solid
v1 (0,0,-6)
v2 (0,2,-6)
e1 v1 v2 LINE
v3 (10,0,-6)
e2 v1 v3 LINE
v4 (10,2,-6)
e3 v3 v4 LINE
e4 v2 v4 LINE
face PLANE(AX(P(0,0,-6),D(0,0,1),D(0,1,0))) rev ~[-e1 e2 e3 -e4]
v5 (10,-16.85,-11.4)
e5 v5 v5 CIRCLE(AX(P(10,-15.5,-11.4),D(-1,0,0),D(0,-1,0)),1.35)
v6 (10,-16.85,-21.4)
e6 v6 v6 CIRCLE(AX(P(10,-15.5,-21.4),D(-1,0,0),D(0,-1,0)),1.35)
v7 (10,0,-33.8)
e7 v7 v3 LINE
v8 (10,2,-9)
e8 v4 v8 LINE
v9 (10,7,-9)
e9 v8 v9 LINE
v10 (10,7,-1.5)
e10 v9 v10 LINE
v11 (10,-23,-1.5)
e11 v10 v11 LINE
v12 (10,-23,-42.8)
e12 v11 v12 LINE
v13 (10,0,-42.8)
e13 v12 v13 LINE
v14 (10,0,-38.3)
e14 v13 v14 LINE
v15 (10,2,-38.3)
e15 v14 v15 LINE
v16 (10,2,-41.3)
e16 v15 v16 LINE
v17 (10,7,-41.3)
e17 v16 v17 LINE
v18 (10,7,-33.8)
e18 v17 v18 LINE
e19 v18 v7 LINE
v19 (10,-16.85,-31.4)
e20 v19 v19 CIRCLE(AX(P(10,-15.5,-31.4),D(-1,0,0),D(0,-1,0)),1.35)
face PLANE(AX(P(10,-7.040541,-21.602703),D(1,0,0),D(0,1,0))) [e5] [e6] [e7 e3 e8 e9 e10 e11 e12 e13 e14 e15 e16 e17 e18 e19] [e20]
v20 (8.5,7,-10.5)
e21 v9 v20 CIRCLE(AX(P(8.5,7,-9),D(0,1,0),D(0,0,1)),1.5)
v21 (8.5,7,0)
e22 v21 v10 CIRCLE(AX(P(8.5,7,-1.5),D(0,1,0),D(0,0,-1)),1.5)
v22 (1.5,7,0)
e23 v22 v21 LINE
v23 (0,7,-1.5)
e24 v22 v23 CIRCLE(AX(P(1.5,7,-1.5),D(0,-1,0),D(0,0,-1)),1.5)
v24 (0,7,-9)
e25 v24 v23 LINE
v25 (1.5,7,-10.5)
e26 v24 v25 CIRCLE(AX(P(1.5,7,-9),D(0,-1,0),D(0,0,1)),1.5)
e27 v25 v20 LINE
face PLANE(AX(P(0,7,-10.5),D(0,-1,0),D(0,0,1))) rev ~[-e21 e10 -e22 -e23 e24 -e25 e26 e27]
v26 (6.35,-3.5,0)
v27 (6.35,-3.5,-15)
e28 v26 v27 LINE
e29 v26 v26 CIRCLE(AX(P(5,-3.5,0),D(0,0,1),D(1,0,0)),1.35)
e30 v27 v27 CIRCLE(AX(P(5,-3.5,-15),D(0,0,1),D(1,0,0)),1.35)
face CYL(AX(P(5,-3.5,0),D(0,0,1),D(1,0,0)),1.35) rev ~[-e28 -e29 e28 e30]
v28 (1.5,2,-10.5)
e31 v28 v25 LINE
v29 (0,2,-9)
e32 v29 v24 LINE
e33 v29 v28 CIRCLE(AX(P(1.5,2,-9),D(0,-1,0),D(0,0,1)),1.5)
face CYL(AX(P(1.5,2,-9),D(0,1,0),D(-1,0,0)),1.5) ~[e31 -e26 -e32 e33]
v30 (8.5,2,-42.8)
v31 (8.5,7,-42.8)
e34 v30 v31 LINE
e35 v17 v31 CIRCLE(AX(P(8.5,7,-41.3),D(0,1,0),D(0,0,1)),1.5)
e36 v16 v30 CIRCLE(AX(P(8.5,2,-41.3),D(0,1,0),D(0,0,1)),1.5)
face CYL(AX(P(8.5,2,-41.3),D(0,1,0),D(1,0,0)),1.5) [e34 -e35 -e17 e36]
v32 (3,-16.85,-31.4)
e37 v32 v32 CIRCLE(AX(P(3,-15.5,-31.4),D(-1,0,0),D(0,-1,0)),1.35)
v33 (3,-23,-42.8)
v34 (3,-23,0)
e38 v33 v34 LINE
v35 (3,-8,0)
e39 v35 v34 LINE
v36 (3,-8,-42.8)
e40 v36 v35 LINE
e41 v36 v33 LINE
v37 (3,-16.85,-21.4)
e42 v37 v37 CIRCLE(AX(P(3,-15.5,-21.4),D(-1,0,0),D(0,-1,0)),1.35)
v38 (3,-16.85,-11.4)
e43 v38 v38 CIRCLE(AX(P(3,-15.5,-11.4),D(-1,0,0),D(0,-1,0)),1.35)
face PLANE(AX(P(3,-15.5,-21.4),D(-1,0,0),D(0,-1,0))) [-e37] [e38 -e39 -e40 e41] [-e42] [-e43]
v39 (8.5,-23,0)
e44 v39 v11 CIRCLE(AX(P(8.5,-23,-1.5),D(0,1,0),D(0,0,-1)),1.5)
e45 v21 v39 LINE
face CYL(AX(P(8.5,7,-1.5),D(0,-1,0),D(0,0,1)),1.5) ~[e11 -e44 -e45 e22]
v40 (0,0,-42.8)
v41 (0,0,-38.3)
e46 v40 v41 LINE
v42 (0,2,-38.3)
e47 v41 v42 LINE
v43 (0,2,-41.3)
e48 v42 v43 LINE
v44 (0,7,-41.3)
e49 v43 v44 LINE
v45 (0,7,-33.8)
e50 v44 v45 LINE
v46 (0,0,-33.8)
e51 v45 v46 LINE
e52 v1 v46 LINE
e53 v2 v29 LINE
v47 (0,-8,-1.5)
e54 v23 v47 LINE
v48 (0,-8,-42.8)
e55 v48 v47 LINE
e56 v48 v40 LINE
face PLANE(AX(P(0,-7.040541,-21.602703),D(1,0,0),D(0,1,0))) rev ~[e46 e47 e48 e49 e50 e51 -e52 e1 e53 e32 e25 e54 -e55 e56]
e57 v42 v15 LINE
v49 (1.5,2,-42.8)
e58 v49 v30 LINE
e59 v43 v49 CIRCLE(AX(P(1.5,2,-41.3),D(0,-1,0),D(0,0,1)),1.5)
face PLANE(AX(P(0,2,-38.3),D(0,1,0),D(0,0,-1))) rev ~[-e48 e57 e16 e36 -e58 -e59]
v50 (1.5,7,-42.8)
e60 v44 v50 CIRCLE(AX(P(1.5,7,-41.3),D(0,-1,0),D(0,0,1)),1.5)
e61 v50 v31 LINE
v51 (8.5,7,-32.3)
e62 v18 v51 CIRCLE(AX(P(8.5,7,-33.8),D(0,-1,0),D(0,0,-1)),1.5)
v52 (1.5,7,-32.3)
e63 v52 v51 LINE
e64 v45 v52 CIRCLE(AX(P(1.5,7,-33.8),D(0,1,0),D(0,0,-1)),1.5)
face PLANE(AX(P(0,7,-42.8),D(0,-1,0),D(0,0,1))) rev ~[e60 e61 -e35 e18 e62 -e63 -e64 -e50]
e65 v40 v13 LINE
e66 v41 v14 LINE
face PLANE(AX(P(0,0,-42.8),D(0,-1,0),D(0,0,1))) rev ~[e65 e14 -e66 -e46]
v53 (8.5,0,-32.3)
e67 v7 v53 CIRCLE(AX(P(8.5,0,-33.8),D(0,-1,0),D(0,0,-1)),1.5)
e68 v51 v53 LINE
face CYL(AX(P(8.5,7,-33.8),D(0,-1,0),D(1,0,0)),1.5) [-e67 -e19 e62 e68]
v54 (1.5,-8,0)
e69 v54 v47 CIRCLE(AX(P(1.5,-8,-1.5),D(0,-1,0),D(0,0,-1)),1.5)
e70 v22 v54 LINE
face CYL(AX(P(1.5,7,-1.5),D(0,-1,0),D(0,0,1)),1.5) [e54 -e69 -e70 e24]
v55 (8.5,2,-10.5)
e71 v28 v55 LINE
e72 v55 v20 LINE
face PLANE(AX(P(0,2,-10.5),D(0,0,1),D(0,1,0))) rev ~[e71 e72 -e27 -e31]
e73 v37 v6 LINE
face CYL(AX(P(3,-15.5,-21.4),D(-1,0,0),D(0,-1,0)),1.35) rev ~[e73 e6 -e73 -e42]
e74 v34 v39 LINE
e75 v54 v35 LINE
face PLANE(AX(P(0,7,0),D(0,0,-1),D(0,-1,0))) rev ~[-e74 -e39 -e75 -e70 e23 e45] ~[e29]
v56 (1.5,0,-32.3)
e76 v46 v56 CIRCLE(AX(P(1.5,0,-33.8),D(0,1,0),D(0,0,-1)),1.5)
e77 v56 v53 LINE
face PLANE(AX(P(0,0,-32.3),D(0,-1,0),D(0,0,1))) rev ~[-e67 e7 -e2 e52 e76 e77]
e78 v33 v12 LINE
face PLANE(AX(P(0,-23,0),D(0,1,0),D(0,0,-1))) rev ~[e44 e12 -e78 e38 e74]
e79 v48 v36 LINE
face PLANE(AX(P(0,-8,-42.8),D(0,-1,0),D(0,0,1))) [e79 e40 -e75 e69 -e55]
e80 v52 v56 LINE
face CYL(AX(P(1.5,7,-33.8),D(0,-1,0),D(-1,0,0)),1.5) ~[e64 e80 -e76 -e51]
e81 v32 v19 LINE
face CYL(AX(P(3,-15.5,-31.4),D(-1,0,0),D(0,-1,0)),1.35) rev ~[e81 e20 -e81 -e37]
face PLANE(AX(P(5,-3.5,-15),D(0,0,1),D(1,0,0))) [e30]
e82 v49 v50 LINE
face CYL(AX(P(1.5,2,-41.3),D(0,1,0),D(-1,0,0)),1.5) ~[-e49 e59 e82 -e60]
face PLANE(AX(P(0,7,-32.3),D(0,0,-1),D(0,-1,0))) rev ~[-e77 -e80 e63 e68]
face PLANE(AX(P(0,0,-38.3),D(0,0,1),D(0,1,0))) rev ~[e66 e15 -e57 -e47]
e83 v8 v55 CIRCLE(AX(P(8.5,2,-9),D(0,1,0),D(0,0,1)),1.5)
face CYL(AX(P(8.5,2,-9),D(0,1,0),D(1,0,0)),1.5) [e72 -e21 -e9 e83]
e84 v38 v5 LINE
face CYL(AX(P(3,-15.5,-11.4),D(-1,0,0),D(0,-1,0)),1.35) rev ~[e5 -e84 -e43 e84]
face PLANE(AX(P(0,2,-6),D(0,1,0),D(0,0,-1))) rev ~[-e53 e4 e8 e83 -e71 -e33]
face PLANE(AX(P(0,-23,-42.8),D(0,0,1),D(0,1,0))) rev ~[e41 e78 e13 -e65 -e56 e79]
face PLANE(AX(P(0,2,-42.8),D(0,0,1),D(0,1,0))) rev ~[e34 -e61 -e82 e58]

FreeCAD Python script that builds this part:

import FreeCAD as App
import Part
import Sketcher

V = App.Vector


def edges_at(feature, points):
    """Names of the edges that pass closest to the given points."""
    edges = feature.Shape.Edges
    near = lambda p: min(range(len(edges)), key=lambda i: edges[i].distToShape(Part.Vertex(*p))[0])
    return sorted({f"Edge{near(p) + 1}" for p in points})


def add_polygon(sketch, points):
    """Adds a closed chain of lines whose ends are joined by coincident constraints."""
    first, n = sketch.GeometryCount, len(points)
    for a, b in zip(points, points[1:] + points[:1]):
        sketch.addGeometry(Part.LineSegment(App.Vector(*a, 0), App.Vector(*b, 0)), False)
    for i in range(n):
        sketch.addConstraint(Sketcher.Constraint("Coincident", first + i, 2, first + (i + 1) % n, 1))

doc = App.newDocument("Part")
body = doc.addObject("PartDesign::Body", "Body")

sketch1 = body.newObject("Sketcher::SketchObject", "Sketch")
sketch1.AttachmentSupport = (doc.getObject("YZ_Plane"), [""])
sketch1.MapMode = "FlatFace"
add_polygon(sketch1, [(7, 0), (-23, 0), (-23, -42.8), (0, -42.8), (0, -38.3), (2, -38.3), (2, -42.8), (7, -42.8), (7, -32.3), (0, -32.3), (0, -6), (2, -6), (2, -10.5), (7, -10.5)])
sketch1.addConstraint([
    Sketcher.Constraint("Horizontal", 0),
    Sketcher.Constraint("Vertical", 1),
    Sketcher.Constraint("Horizontal", 2),
    Sketcher.Constraint("Vertical", 3),
    Sketcher.Constraint("Horizontal", 4),
    Sketcher.Constraint("Vertical", 5),
    Sketcher.Constraint("Horizontal", 6),
    Sketcher.Constraint("Vertical", 7),
    Sketcher.Constraint("Horizontal", 8),
    Sketcher.Constraint("Vertical", 9),
    Sketcher.Constraint("Horizontal", 10),
    Sketcher.Constraint("Vertical", 11),
    Sketcher.Constraint("Horizontal", 12),
    Sketcher.Constraint("Vertical", 13),
    Sketcher.Constraint("PointOnObject", 0, 2, -1),
    Sketcher.Constraint("PointOnObject", 2, 2, -2),
    Sketcher.Constraint("PointOnObject", 8, 2, -2),
    Sketcher.Constraint("Horizontal", 2, 2, 5, 2),
    Sketcher.Constraint("Vertical", 5, 2, 10, 2),
    Sketcher.Constraint("Vertical", 7, 2, 12, 2),
    Sketcher.Constraint("Equal", 5, 11),
    Sketcher.Constraint("Equal", 7, 13),
    Sketcher.Constraint("DistanceX", 0, 2, 0, 1, 30.0),
    Sketcher.Constraint("DistanceX", 2, 1, 2, 2, 23.0),
    Sketcher.Constraint("DistanceX", 4, 1, 4, 2, 2.0),
    Sketcher.Constraint("DistanceY", 1, 2, 1, 1, 42.8),
    Sketcher.Constraint("DistanceY", 3, 1, 3, 2, 4.5),
    Sketcher.Constraint("DistanceY", 7, 1, 7, 2, 10.5),
])
pad1 = body.newObject("PartDesign::Pad", "Pad")
pad1.Profile = sketch1
pad1.Length = 10

sketch2 = body.newObject("Sketcher::SketchObject", "Sketch001")
sketch2.AttachmentSupport = (doc.getObject("XY_Plane"), [""])
sketch2.MapMode = "FlatFace"
sketch2.addGeometry(Part.Circle(V(5, -3.5, 0), V(0, 0, 1), 1.4), False)
sketch2.addConstraint([
    Sketcher.Constraint("Diameter", 0, 2.7),
    Sketcher.Constraint("DistanceX", -1, 1, 0, 3, 5.0),
    Sketcher.Constraint("DistanceY", 0, 3, -1, 1, 3.5),
])
pocket1 = body.newObject("PartDesign::Pocket", "Pocket")
pocket1.Profile = sketch2
pocket1.Length = 15

sketch3 = body.newObject("Sketcher::SketchObject", "Sketch002")
sketch3.AttachmentSupport = (doc.getObject("YZ_Plane"), [""])
sketch3.MapMode = "FlatFace"
add_polygon(sketch3, [(-8, 0), (-8, -43), (-23, -43), (-23, 0)])
sketch3.addConstraint([
    Sketcher.Constraint("Vertical", 0),
    Sketcher.Constraint("Horizontal", 1),
    Sketcher.Constraint("Vertical", 2),
    Sketcher.Constraint("Horizontal", 3),
    Sketcher.Constraint("PointOnObject", 2, 2, -1),
    Sketcher.Constraint("DistanceX", 1, 2, 1, 1, 15.0),
    Sketcher.Constraint("DistanceY", 0, 2, 0, 1, 42.8),
    Sketcher.Constraint("DistanceX", 0, 2, -1, 1, 8.0),
])
pocket2 = body.newObject("PartDesign::Pocket", "Pocket001")
pocket2.Profile = sketch3
pocket2.Length = 3
pocket2.Reversed = True

sketch4 = body.newObject("Sketcher::SketchObject", "Sketch003")
sketch4.AttachmentSupport = (doc.getObject("YZ_Plane"), [""])
sketch4.MapMode = "FlatFace"
sketch4.AttachmentOffset = App.Placement(V(0, 0, 3), App.Rotation())
sketch4.addGeometry([
    Part.Circle(V(-15.5, -21.4, 0), V(0, 0, 1), 1.4),
    Part.Circle(V(-15.5, -11.4, 0), V(0, 0, 1), 1.4),
    Part.Circle(V(-15.5, -31.4, 0), V(0, 0, 1), 1.4),
], False)
sketch4.addConstraint([
    Sketcher.Constraint("Equal", 0, 1),
    Sketcher.Constraint("Equal", 1, 2),
    Sketcher.Constraint("Vertical", 0, 3, 1, 3),
    Sketcher.Constraint("Vertical", 1, 3, 2, 3),
    Sketcher.Constraint("Diameter", 0, 2.7),
    Sketcher.Constraint("DistanceY", 0, 3, 1, 3, 10.0),
    Sketcher.Constraint("DistanceY", 2, 3, 0, 3, 10.0),
    Sketcher.Constraint("DistanceX", 0, 3, -1, 1, 15.5),
    Sketcher.Constraint("DistanceY", 0, 3, -1, 1, 21.4),
])
pocket3 = body.newObject("PartDesign::Pocket", "Pocket002")
pocket3.Profile = sketch4
pocket3.Type = "ThroughAll"
pocket3.Reversed = True
doc.recompute()

fillet = body.newObject("PartDesign::Fillet", "Fillet")
fillet.Base = (pocket3, edges_at(pocket3, [
    (0, -0.5, 0),
    (10, -8, 0),
    (0, 4.5, -10.5),
    (0, 3.5, -32.3),
    (10, 3.5, -32.3),
    (10, 4.5, -10.5),
    (10, 4.5, -42.8),
    (0, 4.5, -42.8),
]))
fillet.Radius = 1.5

doc.recompute()
